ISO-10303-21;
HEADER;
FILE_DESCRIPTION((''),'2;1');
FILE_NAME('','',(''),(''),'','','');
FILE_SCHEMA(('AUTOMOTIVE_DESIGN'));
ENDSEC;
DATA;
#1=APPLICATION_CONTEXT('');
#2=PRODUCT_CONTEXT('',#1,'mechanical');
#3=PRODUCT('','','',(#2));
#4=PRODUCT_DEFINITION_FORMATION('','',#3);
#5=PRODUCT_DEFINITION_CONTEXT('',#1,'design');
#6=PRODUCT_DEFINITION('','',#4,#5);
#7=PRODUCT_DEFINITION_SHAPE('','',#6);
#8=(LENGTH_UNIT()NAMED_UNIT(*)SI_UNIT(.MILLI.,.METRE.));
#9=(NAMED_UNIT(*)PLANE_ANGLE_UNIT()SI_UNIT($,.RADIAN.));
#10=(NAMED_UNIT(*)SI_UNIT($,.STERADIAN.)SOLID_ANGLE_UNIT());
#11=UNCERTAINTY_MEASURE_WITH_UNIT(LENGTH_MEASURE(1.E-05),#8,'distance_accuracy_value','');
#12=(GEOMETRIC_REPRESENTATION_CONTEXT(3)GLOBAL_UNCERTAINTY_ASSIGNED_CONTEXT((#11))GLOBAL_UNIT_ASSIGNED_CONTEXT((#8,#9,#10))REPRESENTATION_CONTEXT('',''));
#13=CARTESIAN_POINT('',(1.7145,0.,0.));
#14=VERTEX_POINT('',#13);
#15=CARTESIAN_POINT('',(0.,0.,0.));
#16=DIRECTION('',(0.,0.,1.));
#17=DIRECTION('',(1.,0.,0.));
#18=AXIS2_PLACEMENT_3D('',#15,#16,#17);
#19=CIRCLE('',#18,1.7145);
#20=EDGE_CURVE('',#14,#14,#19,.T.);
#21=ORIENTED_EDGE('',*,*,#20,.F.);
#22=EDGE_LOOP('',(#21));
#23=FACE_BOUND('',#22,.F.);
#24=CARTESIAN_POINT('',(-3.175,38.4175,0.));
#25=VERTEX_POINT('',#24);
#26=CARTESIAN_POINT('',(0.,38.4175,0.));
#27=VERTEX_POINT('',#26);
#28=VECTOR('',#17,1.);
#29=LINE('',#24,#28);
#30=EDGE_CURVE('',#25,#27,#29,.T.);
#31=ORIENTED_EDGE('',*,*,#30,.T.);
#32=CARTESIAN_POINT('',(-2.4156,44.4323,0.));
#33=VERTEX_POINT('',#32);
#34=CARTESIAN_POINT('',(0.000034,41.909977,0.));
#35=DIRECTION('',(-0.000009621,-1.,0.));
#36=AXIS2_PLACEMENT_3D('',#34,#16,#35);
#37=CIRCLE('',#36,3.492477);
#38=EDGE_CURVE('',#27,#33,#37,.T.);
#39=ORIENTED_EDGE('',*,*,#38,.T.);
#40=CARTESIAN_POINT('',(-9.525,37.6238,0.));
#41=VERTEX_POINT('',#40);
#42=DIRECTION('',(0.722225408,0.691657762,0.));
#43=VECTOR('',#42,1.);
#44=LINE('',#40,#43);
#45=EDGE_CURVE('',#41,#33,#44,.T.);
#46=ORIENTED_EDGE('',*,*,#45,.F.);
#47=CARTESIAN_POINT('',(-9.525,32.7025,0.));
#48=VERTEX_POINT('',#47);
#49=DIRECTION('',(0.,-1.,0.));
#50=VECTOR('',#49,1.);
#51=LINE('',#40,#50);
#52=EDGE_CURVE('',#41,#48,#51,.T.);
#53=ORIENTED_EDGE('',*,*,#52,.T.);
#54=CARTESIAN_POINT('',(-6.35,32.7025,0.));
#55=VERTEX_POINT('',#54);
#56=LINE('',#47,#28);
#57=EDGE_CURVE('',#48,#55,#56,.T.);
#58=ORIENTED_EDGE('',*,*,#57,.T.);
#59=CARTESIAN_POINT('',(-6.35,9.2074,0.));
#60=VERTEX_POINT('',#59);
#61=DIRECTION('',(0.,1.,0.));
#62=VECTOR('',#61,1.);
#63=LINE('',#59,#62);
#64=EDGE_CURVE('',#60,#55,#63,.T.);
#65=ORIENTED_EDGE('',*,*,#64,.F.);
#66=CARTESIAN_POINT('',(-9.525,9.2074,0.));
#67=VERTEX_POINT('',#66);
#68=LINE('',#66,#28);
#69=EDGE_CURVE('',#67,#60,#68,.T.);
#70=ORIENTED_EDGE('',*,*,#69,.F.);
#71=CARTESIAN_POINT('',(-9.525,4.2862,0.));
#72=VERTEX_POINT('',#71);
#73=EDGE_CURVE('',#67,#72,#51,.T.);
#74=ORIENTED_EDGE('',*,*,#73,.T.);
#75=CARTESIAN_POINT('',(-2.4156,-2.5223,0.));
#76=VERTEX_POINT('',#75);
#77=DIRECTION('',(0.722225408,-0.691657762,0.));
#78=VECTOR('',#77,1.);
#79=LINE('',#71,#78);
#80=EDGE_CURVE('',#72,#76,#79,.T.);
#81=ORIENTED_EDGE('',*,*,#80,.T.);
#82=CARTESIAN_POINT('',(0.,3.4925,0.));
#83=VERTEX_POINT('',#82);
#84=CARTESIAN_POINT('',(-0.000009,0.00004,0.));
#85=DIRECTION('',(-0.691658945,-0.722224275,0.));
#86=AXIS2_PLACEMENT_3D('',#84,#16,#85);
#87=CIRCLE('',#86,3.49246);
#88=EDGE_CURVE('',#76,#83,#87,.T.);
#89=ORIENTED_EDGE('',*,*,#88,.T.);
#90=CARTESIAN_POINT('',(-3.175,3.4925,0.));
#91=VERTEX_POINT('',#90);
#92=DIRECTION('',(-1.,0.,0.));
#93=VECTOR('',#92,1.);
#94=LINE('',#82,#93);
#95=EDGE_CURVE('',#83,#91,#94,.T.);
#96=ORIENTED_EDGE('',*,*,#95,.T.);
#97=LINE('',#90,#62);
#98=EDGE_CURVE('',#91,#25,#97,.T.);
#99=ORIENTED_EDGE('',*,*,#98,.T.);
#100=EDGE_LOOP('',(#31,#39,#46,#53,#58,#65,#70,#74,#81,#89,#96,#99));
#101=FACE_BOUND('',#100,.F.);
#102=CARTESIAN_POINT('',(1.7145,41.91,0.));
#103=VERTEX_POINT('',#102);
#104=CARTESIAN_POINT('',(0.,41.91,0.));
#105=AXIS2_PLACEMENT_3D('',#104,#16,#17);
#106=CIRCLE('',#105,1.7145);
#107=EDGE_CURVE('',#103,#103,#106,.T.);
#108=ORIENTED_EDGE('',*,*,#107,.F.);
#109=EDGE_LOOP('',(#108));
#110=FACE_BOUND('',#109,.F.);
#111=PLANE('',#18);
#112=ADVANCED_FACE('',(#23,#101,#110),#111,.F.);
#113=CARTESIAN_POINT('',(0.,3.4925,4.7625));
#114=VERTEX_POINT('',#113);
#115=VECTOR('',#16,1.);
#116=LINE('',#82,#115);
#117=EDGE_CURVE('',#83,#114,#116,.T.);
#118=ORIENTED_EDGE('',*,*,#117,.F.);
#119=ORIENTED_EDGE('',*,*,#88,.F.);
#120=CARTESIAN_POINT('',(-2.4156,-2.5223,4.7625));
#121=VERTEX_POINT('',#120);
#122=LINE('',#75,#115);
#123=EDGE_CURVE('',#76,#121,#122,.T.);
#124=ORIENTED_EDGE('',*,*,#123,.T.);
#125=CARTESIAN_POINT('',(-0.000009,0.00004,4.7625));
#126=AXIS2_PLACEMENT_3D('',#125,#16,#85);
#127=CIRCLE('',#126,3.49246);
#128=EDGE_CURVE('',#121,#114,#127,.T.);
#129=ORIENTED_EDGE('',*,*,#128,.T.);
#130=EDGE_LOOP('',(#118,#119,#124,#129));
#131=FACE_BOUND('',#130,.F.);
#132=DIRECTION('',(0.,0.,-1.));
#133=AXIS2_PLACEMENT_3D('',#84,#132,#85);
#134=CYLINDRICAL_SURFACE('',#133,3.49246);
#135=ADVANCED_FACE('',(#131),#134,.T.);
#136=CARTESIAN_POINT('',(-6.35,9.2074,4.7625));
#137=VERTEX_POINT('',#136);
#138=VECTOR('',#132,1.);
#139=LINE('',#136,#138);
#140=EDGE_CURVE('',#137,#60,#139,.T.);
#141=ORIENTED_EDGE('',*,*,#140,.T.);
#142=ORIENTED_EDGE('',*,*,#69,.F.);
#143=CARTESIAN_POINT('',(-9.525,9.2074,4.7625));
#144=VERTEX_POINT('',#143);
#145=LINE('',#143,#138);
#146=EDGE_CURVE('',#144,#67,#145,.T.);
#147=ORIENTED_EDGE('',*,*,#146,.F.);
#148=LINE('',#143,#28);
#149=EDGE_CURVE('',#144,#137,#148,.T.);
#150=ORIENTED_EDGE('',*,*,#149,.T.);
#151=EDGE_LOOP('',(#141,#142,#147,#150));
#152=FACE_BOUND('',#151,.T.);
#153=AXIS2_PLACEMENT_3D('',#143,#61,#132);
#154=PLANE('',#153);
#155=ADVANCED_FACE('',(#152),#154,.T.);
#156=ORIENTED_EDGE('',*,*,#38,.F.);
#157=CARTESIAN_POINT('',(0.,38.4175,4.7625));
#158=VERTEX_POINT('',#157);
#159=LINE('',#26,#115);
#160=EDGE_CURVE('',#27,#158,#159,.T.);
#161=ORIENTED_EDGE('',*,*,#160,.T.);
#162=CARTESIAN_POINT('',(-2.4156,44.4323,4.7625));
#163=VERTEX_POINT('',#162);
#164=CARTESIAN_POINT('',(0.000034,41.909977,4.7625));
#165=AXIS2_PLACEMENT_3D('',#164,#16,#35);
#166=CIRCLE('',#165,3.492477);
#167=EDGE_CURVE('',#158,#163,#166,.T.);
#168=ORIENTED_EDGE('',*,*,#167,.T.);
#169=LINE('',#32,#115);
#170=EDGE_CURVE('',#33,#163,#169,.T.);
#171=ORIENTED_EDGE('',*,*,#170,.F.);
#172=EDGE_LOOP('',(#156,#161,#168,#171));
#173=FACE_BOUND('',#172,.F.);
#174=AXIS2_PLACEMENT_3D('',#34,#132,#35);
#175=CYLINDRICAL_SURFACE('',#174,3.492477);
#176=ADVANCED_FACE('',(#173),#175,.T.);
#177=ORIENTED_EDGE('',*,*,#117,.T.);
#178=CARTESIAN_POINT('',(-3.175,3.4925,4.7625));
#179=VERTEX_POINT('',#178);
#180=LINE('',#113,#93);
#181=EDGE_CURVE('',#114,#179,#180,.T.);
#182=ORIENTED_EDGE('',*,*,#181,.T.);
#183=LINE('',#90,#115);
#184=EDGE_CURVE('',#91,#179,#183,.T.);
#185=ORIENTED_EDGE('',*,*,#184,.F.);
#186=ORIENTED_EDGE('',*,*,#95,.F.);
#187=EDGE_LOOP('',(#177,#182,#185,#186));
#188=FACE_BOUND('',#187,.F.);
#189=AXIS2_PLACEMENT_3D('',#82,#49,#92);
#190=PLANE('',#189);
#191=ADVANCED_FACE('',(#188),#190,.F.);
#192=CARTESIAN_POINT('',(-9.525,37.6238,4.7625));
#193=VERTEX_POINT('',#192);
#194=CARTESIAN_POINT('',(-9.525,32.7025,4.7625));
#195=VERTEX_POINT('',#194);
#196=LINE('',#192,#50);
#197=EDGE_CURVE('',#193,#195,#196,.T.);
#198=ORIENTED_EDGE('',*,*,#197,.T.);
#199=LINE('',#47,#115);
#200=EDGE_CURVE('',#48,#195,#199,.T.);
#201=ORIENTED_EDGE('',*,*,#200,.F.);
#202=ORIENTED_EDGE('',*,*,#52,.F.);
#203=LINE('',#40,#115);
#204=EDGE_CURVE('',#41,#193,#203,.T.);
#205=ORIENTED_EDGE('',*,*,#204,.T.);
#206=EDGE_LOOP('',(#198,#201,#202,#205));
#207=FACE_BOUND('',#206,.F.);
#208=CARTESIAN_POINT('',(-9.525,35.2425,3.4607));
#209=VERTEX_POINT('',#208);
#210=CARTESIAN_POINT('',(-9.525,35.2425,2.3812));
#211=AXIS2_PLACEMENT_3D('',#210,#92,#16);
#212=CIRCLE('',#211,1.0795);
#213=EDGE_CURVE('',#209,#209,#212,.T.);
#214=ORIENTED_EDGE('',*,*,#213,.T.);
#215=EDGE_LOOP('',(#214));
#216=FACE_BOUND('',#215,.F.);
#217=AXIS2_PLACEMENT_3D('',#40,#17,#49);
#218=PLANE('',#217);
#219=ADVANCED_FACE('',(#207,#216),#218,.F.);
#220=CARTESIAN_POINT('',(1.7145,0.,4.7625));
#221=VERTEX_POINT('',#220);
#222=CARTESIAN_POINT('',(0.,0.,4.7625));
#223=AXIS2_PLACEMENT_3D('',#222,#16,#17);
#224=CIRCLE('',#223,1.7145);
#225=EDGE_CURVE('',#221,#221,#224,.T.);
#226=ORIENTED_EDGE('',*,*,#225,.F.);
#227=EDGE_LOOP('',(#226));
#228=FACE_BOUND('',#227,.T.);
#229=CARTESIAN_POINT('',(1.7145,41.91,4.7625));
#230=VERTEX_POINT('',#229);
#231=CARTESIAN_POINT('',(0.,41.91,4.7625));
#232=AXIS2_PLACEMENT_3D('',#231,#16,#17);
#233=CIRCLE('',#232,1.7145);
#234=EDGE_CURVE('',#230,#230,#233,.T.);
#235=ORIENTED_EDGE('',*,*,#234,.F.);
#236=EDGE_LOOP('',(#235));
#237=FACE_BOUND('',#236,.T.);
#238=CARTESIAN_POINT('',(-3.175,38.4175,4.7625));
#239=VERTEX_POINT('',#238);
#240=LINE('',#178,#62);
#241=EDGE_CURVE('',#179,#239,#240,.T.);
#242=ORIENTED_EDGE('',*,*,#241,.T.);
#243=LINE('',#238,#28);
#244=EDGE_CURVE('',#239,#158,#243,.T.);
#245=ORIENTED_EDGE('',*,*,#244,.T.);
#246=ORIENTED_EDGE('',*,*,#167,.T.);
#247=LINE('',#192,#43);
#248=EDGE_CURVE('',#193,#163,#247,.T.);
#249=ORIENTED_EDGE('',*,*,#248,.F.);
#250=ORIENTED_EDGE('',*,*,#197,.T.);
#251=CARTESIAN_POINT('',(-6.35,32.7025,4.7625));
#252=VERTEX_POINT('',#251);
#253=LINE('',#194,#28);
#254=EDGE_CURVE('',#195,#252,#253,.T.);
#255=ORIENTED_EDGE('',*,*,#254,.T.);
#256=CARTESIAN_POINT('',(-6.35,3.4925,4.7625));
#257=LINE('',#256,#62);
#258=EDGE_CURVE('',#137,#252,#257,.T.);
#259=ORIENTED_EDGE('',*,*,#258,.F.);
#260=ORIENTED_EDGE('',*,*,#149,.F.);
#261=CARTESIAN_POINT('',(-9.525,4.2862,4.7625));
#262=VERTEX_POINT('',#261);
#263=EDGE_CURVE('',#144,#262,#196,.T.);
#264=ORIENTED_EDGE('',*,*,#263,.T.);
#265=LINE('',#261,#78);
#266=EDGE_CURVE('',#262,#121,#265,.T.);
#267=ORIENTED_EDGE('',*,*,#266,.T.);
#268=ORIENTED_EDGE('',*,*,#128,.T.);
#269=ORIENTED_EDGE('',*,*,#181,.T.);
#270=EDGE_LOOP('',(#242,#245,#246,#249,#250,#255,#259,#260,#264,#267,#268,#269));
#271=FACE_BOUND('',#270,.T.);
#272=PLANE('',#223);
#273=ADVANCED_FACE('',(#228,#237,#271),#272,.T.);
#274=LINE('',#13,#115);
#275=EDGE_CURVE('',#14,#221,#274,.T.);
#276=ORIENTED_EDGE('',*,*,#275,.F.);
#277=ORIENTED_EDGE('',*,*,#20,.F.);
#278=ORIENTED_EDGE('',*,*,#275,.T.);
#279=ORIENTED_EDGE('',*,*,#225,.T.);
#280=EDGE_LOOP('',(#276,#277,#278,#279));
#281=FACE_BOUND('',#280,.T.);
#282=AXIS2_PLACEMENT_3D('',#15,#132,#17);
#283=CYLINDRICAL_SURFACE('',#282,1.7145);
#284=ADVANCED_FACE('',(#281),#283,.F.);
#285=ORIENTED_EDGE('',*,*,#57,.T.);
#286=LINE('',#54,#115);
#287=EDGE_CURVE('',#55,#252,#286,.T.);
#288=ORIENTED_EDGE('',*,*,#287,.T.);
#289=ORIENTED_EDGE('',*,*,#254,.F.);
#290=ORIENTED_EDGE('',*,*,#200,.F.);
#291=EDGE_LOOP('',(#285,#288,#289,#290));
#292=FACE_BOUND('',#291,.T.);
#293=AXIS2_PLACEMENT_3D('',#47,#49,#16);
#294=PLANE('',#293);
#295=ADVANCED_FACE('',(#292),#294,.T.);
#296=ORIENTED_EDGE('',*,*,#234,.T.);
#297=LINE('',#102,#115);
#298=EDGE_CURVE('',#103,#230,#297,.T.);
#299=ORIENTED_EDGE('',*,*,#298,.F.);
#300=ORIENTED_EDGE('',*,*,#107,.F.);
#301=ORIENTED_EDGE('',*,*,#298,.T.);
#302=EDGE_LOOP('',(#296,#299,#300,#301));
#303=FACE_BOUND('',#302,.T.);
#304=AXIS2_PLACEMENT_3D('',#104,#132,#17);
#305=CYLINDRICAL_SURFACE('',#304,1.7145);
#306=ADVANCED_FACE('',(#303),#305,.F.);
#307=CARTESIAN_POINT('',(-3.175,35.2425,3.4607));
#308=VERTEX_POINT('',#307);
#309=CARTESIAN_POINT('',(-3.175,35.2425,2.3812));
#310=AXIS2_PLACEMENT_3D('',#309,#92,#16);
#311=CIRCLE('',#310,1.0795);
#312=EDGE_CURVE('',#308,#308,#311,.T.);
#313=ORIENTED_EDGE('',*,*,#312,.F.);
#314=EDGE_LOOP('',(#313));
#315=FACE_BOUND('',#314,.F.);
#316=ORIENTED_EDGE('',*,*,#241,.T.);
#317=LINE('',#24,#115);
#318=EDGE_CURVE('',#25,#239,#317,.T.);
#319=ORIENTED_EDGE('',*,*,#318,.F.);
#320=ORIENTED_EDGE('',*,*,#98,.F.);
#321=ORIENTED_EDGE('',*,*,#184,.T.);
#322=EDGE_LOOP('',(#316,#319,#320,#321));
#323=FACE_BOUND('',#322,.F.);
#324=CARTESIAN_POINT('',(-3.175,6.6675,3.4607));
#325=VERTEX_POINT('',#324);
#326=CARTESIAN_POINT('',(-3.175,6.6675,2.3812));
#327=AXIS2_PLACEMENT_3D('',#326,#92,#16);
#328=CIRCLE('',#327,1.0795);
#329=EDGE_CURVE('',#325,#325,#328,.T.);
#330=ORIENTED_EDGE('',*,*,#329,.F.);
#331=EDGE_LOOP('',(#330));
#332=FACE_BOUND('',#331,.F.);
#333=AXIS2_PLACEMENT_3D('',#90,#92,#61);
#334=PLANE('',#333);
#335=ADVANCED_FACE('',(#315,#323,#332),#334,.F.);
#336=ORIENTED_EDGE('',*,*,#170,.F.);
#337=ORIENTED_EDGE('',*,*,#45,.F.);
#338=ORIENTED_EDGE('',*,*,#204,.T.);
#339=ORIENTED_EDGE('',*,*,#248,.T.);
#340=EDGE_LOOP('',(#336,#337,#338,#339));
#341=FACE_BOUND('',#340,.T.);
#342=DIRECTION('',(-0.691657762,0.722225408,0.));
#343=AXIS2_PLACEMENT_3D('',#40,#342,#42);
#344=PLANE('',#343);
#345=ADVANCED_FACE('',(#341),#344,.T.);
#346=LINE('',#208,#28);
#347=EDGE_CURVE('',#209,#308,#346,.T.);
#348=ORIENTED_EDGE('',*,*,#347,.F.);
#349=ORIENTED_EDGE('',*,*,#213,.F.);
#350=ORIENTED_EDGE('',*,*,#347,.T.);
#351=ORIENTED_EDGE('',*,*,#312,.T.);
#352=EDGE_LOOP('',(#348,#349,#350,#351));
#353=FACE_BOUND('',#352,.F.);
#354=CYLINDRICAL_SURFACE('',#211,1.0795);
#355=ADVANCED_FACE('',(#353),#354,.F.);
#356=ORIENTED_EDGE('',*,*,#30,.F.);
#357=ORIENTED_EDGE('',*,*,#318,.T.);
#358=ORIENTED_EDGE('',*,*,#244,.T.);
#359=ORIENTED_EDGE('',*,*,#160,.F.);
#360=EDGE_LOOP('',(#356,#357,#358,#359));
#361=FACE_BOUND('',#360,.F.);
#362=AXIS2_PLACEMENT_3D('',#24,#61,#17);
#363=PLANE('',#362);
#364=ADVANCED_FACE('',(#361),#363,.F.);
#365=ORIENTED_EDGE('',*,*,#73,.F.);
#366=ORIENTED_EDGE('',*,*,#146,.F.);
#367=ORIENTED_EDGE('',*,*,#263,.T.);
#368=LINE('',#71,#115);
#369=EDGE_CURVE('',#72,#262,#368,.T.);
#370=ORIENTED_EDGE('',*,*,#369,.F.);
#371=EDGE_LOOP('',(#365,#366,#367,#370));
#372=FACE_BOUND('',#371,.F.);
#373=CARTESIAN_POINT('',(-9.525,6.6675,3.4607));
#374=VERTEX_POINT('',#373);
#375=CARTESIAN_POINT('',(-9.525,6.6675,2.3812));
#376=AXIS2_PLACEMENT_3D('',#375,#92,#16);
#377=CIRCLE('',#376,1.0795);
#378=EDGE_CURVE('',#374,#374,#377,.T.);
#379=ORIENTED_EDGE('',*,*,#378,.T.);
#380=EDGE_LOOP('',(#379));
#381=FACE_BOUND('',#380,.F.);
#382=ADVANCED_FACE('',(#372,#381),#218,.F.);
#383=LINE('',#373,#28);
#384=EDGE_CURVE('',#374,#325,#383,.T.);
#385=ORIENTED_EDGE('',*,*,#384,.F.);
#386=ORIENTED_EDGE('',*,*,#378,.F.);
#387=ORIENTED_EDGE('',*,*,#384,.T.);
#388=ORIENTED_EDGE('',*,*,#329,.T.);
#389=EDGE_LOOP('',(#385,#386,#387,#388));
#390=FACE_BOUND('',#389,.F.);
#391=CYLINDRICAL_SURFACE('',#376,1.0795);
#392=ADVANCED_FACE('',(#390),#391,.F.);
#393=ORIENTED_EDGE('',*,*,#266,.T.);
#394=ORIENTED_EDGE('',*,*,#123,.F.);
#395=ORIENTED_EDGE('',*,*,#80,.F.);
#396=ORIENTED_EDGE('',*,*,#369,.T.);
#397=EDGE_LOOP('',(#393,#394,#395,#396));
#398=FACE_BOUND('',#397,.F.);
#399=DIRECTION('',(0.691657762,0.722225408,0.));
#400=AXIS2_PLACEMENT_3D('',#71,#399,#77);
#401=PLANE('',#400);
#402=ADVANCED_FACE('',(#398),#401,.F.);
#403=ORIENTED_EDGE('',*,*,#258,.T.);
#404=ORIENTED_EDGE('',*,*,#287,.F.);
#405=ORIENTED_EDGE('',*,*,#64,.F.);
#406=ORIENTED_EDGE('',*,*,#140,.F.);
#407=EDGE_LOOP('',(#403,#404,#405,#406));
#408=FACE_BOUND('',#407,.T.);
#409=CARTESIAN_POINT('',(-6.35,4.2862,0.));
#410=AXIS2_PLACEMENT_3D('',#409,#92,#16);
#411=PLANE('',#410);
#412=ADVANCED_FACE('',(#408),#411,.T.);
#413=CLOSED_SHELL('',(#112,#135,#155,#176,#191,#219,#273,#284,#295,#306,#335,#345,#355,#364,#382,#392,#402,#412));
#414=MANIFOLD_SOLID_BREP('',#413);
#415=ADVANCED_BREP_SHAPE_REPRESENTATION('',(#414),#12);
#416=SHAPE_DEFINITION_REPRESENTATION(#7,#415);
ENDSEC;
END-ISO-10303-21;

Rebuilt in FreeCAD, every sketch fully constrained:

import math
import FreeCAD as App
import Part
import Sketcher
from FreeCAD import Vector
Q = App.Units.Quantity

doc = App.newDocument("Part")
body = doc.addObject("PartDesign::Body", "Body")

sketch1 = body.newObject("Sketcher::SketchObject", "Sketch")
sketch1.AttachmentSupport = (doc.getObject("XY_Plane"), [""])
sketch1.MapMode = "FlatFace"
sketch1.addGeometry([
    Part.LineSegment(Vector(-3.175, 38.4175, 0), Vector(0, 38.4175, 0)),
    Part.ArcOfCircle(Part.Circle(Vector(0, 41.91, 0), Vector(0, 0, 1), 3.4925), math.radians(-90), math.radians(133.762124)),
    Part.LineSegment(Vector(-2.4156, 44.4323, 0), Vector(-9.525, 37.6238, 0)),
    Part.LineSegment(Vector(-9.525, 37.6238, 0), Vector(-9.525, 4.2862, 0)),
    Part.LineSegment(Vector(-9.525, 4.2862, 0), Vector(-2.4156, -2.5223, 0)),
    Part.ArcOfCircle(Part.Circle(Vector(0, 0, 0), Vector(0, 0, 1), 3.492438), math.radians(-133.762124), math.radians(90)),
    Part.LineSegment(Vector(0, 3.4925, 0), Vector(-3.175, 3.4925, 0)),
    Part.LineSegment(Vector(-3.175, 3.4925, 0), Vector(-3.175, 38.4175, 0)),
    Part.Circle(Vector(0, 0, 0), Vector(0, 0, 1), 1.7145),
    Part.Circle(Vector(0, 41.91, 0), Vector(0, 0, 1), 1.7145),
], False)
sketch1.addConstraint([
    Sketcher.Constraint("Tangent", 0, 2, 1, 1),
    Sketcher.Constraint("Tangent", 1, 2, 2, 1),
    Sketcher.Constraint("Coincident", 2, 2, 3, 1),
    Sketcher.Constraint("Coincident", 3, 2, 4, 1),
    Sketcher.Constraint("Tangent", 4, 2, 5, 1),
    Sketcher.Constraint("Tangent", 5, 2, 6, 1),
    Sketcher.Constraint("Coincident", 6, 2, 7, 1),
    Sketcher.Constraint("Coincident", 7, 2, 0, 1),
    Sketcher.Constraint("Horizontal", 0),
    Sketcher.Constraint("Vertical", 3),
    Sketcher.Constraint("Horizontal", 6),
    Sketcher.Constraint("Vertical", 7),
    Sketcher.Constraint("Coincident", 5, 3, -1, 1),
    Sketcher.Constraint("Coincident", 8, 3, -1, 1),
    Sketcher.Constraint("Coincident", 9, 3, 1, 3),
    Sketcher.Constraint("Equal", 1, 5),
    Sketcher.Constraint("Equal", 8, 9),
    Sketcher.Constraint("PointOnObject", 1, 3, -2),
    Sketcher.Constraint("Vertical", 1, 2, 4, 2),
    Sketcher.Constraint("Diameter", 8, Q("0.135 in")),
    Sketcher.Constraint("Radius", 1, Q("0.1375 in")),
    Sketcher.Constraint("DistanceX", 0, 1, 0, 2, Q("0.125 in")),
    Sketcher.Constraint("DistanceY", 3, 2, 3, 1, Q("1.3125 in")),
    Sketcher.Constraint("DistanceY", -1, 1, 1, 3, Q("1.65 in")),
    Sketcher.Constraint("DistanceX", 2, 2, -1, 1, Q("0.375 in")),
])
pad1 = body.newObject("PartDesign::Pad", "Pad")
pad1.Profile = sketch1
pad1.Length = Q("0.1875 in")

sketch2 = body.newObject("Sketcher::SketchObject", "Sketch001")
sketch2.AttachmentSupport = (doc.getObject("YZ_Plane"), [""])
sketch2.MapMode = "FlatFace"
sketch2.AttachmentOffset = App.Placement(Vector(0, 0, -0.375 * 25.4), App.Rotation())
sketch2.addGeometry([
    Part.Circle(Vector(35.2425, 2.3812, 0), Vector(0, 0, 1), 1.0795),
    Part.Circle(Vector(6.6675, 2.3812, 0), Vector(0, 0, 1), 1.0795),
], False)
sketch2.addConstraint([
    Sketcher.Constraint("Equal", 0, 1),
    Sketcher.Constraint("Horizontal", 0, 3, 1, 3),
    Sketcher.Constraint("Diameter", 0, Q("0.085 in")),
    Sketcher.Constraint("DistanceX", 1, 3, 0, 3, Q("1.125 in")),
    Sketcher.Constraint("DistanceY", -1, 1, 0, 3, Q("0.093748 in")),
    Sketcher.Constraint("DistanceX", -1, 1, 0, 3, Q("1.3875 in")),
])
pocket1 = body.newObject("PartDesign::Pocket", "Pocket")
pocket1.Profile = sketch2
pocket1.Type = "ThroughAll"
pocket1.Reversed = True

sketch3 = body.newObject("Sketcher::SketchObject", "Sketch002")
sketch3.AttachmentSupport = (doc.getObject("YZ_Plane"), [""])
sketch3.MapMode = "FlatFace"
sketch3.AttachmentOffset = App.Placement(Vector(0, 0, -0.375 * 25.4), App.Rotation())
sketch3.addGeometry([
    Part.LineSegment(Vector(9.2074, 0, 0), Vector(9.2074, 4.7625, 0)),
    Part.LineSegment(Vector(9.2074, 4.7625, 0), Vector(32.7025, 4.7625, 0)),
    Part.LineSegment(Vector(32.7025, 4.7625, 0), Vector(32.7025, 0, 0)),
    Part.LineSegment(Vector(32.7025, 0, 0), Vector(9.2074, 0, 0)),
], False)
sketch3.addConstraint([
    Sketcher.Constraint("Coincident", 0, 2, 1, 1),
    Sketcher.Constraint("Coincident", 1, 2, 2, 1),
    Sketcher.Constraint("Coincident", 2, 2, 3, 1),
    Sketcher.Constraint("Coincident", 3, 2, 0, 1),
    Sketcher.Constraint("Vertical", 0),
    Sketcher.Constraint("Horizontal", 1),
    Sketcher.Constraint("Vertical", 2),
    Sketcher.Constraint("Horizontal", 3),
    Sketcher.Constraint("PointOnObject", 2, 2, -1),
    Sketcher.Constraint("DistanceX", 1, 1, 1, 2, Q("0.925 in")),
    Sketcher.Constraint("DistanceY", 0, 1, 0, 2, Q("0.1875 in")),
    Sketcher.Constraint("DistanceX", -1, 1, 0, 2, Q("0.3625 in")),
])
pocket2 = body.newObject("PartDesign::Pocket", "Pocket001")
pocket2.Profile = sketch3
pocket2.Length = Q("0.125 in")
pocket2.Reversed = True

doc.recompute()
